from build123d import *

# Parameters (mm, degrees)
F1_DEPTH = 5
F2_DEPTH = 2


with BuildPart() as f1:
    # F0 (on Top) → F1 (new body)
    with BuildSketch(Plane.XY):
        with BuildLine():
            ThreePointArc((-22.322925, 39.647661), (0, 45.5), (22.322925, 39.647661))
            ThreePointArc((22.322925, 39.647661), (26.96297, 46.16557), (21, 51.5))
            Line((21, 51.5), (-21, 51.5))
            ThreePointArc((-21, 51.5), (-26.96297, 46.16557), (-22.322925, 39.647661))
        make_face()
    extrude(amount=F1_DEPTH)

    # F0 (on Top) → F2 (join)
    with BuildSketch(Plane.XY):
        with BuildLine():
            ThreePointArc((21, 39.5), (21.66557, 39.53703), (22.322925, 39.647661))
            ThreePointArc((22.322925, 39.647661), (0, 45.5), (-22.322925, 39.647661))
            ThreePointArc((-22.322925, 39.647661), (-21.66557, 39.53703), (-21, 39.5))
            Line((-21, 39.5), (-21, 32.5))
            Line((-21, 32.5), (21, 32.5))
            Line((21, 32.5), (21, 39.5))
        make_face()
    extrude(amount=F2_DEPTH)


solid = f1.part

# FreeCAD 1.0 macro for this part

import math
import FreeCAD as App
import Part
import Sketcher

V = App.Vector
Q = App.Units.Quantity

doc = App.newDocument("Part")
params = doc.addObject("Spreadsheet::Sheet", "Params")
for row, (alias, value) in enumerate([
    ("sketch1_radius", "6 mm"),
    ("sketch1_radius2", "45.5 mm"),
    ("sketch1_width", "42 mm"),
    ("pad1_length", "5 mm"),
    ("sketch2_radius", "45.5 mm"),
    ("sketch2_width", "42 mm"),
    ("sketch2_height", "7 mm"),
    ("pad2_length", "2 mm"),
], start=1):
    params.set(f"A{row}", alias)
    params.set(f"B{row}", "=" + value)
    params.setAlias(f"B{row}", alias)

body = doc.addObject("PartDesign::Body", "Body")

sketch1 = doc.addObject("Sketcher::SketchObject", "Sketch")
body.addObject(sketch1)
sketch1.AttachmentSupport = (doc.XY_Plane, [""])
sketch1.MapMode = "FlatFace"
sketch1.addGeometry([
    Part.ArcOfCircle(Part.Circle(V(0, 0, 0), V(0, 0, 1), 46), math.radians(61), math.radians(119)),
    Part.ArcOfCircle(Part.Circle(V(21, 45, 0), V(0, 0, 1), 6), math.radians(-77), math.radians(90)),
    Part.LineSegment(V(21, 52, 0), V(-21, 52, 0)),
    Part.ArcOfCircle(Part.Circle(V(-21, 45, 0), V(0, 0, 1), 6), math.radians(90), math.radians(257)),
], False)
sketch1.addConstraint([
    Sketcher.Constraint("Coincident", 0, 1, 1, 1),
    Sketcher.Constraint("Tangent", 1, 2, 2, 1),
    Sketcher.Constraint("Tangent", 2, 2, 3, 1),
    Sketcher.Constraint("Coincident", 3, 2, 0, 2),
    Sketcher.Constraint("Horizontal", 2),
    Sketcher.Constraint("Coincident", 0, 3, -1, 1),
    Sketcher.Constraint("Equal", 1, 3),
    Sketcher.Constraint("Horizontal", 0, 1, 3, 2),
    Sketcher.Constraint("Radius", 1, Q("6 mm")),
    Sketcher.Constraint("Radius", 0, Q("45.5 mm")),
    Sketcher.Constraint("DistanceX", 2, 2, 2, 1, Q("42 mm")),
    Sketcher.Constraint("DistanceY", -1, 1, 1, 3, Q("45.5 mm")),
])
sketch1.setExpression("Constraints[8]", "Params.sketch1_radius")
sketch1.setExpression("Constraints[9]", "Params.sketch1_radius2")
sketch1.setExpression("Constraints[10]", "Params.sketch1_width")
pad1 = doc.addObject("PartDesign::Pad", "Pad")
body.addObject(pad1)
pad1.Profile = sketch1
pad1.setExpression("Length", "Params.pad1_length")

sketch2 = doc.addObject("Sketcher::SketchObject", "Sketch001")
body.addObject(sketch2)
sketch2.AttachmentSupport = (doc.XY_Plane, [""])
sketch2.MapMode = "FlatFace"
sketch2.addGeometry([
    Part.ArcOfCircle(Part.Circle(V(21, 45.5, 0), V(0, 0, 1), 6), math.radians(-90), math.radians(-77.26)),
    Part.ArcOfCircle(Part.Circle(V(0, 0, 0), V(0, 0, 1), 45.5), math.radians(61), math.radians(119)),
    Part.ArcOfCircle(Part.Circle(V(-21, 45.5, 0), V(0, 0, 1), 6), math.radians(-102.74), math.radians(-90)),
    Part.LineSegment(V(-21, 39.5, 0), V(-21, 32.5, 0)),
    Part.LineSegment(V(-21, 32.5, 0), V(21, 32.5, 0)),
    Part.LineSegment(V(21, 32.5, 0), V(21, 39.5, 0)),
], False)
sketch2.addConstraint([
    Sketcher.Constraint("Coincident", 0, 2, 1, 1),
    Sketcher.Constraint("Coincident", 1, 2, 2, 1),
    Sketcher.Constraint("Coincident", 2, 2, 3, 1),
    Sketcher.Constraint("Coincident", 3, 2, 4, 1),
    Sketcher.Constraint("Coincident", 4, 2, 5, 1),
    Sketcher.Constraint("Coincident", 5, 2, 0, 1),
    Sketcher.Constraint("Vertical", 3),
    Sketcher.Constraint("Horizontal", 4),
    Sketcher.Constraint("Vertical", 5),
    Sketcher.Constraint("Coincident", 1, 3, -1, 1),
    Sketcher.Constraint("Equal", 0, 2),
    Sketcher.Constraint("Symmetric", 0, 3, 2, 3, -2),
    Sketcher.Constraint("Radius", 1, Q("45.5 mm")),
    Sketcher.Constraint("DistanceX", 4, 1, 4, 2, Q("42 mm")),
    Sketcher.Constraint("DistanceY", 3, 2, 3, 1, Q("7 mm")),
    Sketcher.Constraint("DistanceX", 2, 2, -1, 1, Q("21 mm")),
    Sketcher.Constraint("DistanceY", -1, 1, 2, 2, Q("39.5 mm")),
    Sketcher.Constraint("Radius", 0, Q("6.000088 mm")),
    Sketcher.Constraint("DistanceX", -1, 1, 0, 3, Q("20.999991 mm")),
])
sketch2.setExpression("Constraints[12]", "Params.sketch2_radius")
sketch2.setExpression("Constraints[13]", "Params.sketch2_width")
sketch2.setExpression("Constraints[14]", "Params.sketch2_height")
pad2 = doc.addObject("PartDesign::Pad", "Pad001")
body.addObject(pad2)
pad2.Profile = sketch2
pad2.setExpression("Length", "Params.pad2_length")

doc.recompute()
